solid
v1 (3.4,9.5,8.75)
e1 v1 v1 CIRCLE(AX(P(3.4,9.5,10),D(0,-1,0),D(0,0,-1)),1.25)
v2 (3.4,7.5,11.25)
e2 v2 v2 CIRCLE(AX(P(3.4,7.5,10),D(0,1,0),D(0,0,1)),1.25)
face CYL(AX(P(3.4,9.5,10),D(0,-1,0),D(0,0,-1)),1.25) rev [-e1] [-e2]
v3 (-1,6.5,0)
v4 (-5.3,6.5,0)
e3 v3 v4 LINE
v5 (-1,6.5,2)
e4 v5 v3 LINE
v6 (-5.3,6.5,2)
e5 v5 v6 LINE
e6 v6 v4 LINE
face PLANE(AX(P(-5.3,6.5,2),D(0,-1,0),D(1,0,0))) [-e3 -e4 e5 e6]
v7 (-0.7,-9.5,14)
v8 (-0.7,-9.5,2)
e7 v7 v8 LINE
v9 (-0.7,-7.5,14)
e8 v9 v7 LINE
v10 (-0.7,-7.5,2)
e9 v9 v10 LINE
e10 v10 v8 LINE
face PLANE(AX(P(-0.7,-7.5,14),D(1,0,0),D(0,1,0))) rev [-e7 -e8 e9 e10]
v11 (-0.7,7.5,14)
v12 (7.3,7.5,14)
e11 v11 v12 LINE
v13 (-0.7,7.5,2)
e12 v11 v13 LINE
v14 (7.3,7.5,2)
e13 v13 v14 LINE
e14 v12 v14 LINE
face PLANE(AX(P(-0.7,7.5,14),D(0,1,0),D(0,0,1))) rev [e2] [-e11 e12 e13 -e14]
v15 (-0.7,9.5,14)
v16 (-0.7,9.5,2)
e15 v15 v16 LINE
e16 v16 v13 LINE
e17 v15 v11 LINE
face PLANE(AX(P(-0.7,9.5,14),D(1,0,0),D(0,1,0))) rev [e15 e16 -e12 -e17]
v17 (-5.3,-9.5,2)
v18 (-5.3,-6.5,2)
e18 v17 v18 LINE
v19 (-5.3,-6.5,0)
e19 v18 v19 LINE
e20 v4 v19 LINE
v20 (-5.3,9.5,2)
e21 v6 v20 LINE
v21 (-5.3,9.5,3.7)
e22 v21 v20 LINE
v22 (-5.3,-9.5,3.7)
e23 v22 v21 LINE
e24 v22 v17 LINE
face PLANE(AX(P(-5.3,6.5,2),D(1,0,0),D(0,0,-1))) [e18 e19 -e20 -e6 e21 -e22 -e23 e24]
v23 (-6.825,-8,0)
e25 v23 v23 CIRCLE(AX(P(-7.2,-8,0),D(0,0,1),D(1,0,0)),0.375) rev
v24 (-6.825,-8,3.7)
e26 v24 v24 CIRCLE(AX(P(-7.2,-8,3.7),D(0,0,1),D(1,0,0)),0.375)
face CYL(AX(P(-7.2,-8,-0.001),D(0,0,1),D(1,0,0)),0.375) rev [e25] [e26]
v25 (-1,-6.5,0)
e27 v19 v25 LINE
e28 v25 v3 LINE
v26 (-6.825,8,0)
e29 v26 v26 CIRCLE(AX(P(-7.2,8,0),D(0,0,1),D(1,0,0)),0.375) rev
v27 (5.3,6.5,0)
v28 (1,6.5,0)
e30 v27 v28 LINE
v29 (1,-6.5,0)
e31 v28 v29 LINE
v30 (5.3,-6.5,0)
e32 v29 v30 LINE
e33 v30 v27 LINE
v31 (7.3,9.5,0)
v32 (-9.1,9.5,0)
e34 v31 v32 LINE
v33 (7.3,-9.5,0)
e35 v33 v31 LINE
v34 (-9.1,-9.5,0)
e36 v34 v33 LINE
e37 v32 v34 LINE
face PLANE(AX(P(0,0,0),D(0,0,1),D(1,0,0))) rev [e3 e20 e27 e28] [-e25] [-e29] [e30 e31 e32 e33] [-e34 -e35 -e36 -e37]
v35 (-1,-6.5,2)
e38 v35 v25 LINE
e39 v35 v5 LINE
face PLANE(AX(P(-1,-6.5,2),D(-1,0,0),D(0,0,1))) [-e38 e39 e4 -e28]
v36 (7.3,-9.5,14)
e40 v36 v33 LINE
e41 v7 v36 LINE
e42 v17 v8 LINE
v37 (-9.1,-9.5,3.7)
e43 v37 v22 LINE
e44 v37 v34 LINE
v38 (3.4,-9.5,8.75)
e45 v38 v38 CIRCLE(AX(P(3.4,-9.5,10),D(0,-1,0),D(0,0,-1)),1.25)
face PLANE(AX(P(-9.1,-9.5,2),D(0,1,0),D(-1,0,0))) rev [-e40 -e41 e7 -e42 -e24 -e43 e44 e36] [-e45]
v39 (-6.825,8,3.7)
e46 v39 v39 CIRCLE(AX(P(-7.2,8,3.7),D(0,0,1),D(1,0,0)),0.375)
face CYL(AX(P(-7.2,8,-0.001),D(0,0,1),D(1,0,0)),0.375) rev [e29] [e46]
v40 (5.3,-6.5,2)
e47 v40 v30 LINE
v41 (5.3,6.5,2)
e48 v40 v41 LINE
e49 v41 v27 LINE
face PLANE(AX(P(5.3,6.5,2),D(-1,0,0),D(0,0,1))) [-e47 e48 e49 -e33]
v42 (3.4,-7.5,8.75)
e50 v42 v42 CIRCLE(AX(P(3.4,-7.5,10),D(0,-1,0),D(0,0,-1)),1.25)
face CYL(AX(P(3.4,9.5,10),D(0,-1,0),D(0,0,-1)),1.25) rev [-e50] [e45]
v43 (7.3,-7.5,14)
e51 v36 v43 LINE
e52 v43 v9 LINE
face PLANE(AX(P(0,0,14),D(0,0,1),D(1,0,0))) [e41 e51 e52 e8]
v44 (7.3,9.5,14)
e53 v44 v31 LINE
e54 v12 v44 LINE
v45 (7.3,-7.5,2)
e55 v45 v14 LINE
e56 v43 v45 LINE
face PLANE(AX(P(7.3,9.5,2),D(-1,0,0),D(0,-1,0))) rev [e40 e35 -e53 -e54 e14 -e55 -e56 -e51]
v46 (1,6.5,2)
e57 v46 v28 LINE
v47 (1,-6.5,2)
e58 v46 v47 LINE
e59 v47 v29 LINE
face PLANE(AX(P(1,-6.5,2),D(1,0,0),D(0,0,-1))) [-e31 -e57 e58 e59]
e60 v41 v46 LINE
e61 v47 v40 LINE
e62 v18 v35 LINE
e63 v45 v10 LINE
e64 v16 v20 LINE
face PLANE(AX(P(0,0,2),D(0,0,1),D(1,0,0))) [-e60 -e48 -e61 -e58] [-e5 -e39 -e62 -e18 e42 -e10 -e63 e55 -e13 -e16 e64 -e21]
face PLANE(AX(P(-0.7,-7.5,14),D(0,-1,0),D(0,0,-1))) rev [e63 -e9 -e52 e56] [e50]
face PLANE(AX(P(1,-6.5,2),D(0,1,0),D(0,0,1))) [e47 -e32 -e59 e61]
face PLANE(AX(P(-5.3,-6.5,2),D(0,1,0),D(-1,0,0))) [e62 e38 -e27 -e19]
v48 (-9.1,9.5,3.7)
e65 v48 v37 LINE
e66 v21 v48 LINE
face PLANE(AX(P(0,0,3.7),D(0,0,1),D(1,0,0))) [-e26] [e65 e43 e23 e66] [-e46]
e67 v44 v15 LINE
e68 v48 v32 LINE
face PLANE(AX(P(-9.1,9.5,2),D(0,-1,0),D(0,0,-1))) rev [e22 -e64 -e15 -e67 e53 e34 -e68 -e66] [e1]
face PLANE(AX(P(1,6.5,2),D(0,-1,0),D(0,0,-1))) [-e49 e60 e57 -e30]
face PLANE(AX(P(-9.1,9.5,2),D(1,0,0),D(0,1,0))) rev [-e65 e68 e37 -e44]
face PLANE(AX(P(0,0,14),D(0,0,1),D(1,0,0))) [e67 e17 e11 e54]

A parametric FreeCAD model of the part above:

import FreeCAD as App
import Part
import Sketcher

V = App.Vector

doc = App.newDocument("Part")
body = doc.addObject("PartDesign::Body", "Body")

sketch1 = doc.addObject("Sketcher::SketchObject", "Sketch")
body.addObject(sketch1)
sketch1.AttachmentSupport = (doc.XY_Plane, [""])
sketch1.MapMode = "FlatFace"
sketch1.addGeometry([
    Part.LineSegment(V(-9.1, 9.5, 0), V(-9.1, -9.5, 0)),
    Part.LineSegment(V(-9.1, -9.5, 0), V(7.3, -9.5, 0)),
    Part.LineSegment(V(7.3, -9.5, 0), V(7.3, 9.5, 0)),
    Part.LineSegment(V(7.3, 9.5, 0), V(-9.1, 9.5, 0)),
    Part.LineSegment(V(-1, -6.5, 0), V(-5.3, -6.5, 0)),
    Part.LineSegment(V(-5.3, -6.5, 0), V(-5.3, 6.5, 0)),
    Part.LineSegment(V(-5.3, 6.5, 0), V(-1, 6.5, 0)),
    Part.LineSegment(V(-1, 6.5, 0), V(-1, -6.5, 0)),
    Part.LineSegment(V(5.3, -6.5, 0), V(1, -6.5, 0)),
    Part.LineSegment(V(1, -6.5, 0), V(1, 6.5, 0)),
    Part.LineSegment(V(1, 6.5, 0), V(5.3, 6.5, 0)),
    Part.LineSegment(V(5.3, 6.5, 0), V(5.3, -6.5, 0)),
], False)
sketch1.addConstraint([
    Sketcher.Constraint("Coincident", 0, 2, 1, 1),
    Sketcher.Constraint("Coincident", 1, 2, 2, 1),
    Sketcher.Constraint("Coincident", 2, 2, 3, 1),
    Sketcher.Constraint("Coincident", 3, 2, 0, 1),
    Sketcher.Constraint("Coincident", 4, 2, 5, 1),
    Sketcher.Constraint("Coincident", 5, 2, 6, 1),
    Sketcher.Constraint("Coincident", 6, 2, 7, 1),
    Sketcher.Constraint("Coincident", 7, 2, 4, 1),
    Sketcher.Constraint("Coincident", 8, 2, 9, 1),
    Sketcher.Constraint("Coincident", 9, 2, 10, 1),
    Sketcher.Constraint("Coincident", 10, 2, 11, 1),
    Sketcher.Constraint("Coincident", 11, 2, 8, 1),
    Sketcher.Constraint("Vertical", 0),
    Sketcher.Constraint("Horizontal", 1),
    Sketcher.Constraint("Vertical", 2),
    Sketcher.Constraint("Horizontal", 3),
    Sketcher.Constraint("Horizontal", 4),
    Sketcher.Constraint("Vertical", 5),
    Sketcher.Constraint("Horizontal", 6),
    Sketcher.Constraint("Vertical", 7),
    Sketcher.Constraint("Horizontal", 8),
    Sketcher.Constraint("Vertical", 9),
    Sketcher.Constraint("Horizontal", 10),
    Sketcher.Constraint("Vertical", 11),
    Sketcher.Constraint("Symmetric", 6, 2, 8, 2, -1, 1),
    Sketcher.Constraint("Symmetric", 4, 2, 10, 2, -1, 1),
    Sketcher.Constraint("Horizontal", 7, 2, 8, 2),
    Sketcher.Constraint("DistanceY", 0, 2, 0, 1, 19.0),
    Sketcher.Constraint("DistanceY", 5, 1, 5, 2, 13.0),
    Sketcher.Constraint("DistanceX", 1, 1, 1, 2, 16.4),
    Sketcher.Constraint("DistanceX", 4, 2, 4, 1, 4.3),
    Sketcher.Constraint("DistanceX", 6, 2, -1, 1, 1.0),
    Sketcher.Constraint("DistanceY", 0, 2, 4, 2, 3.0),
    Sketcher.Constraint("DistanceX", 10, 2, 2, 2, 2.0),
])
pad1 = doc.addObject("PartDesign::Pad", "Pad")
body.addObject(pad1)
pad1.Profile = sketch1
pad1.Length = 2

sketch2 = doc.addObject("Sketcher::SketchObject", "Sketch001")
body.addObject(sketch2)
sketch2.AttachmentSupport = (doc.XY_Plane, [""])
sketch2.MapMode = "FlatFace"
sketch2.AttachmentOffset = App.Placement(V(0, 0, 2), App.Rotation())
sketch2.addGeometry([
    Part.LineSegment(V(-0.7, 9.5, 0), V(-0.7, 7.5, 0)),
    Part.LineSegment(V(-0.7, 7.5, 0), V(7.3, 7.5, 0)),
    Part.LineSegment(V(7.3, 7.5, 0), V(7.3, 9.5, 0)),
    Part.LineSegment(V(7.3, 9.5, 0), V(-0.7, 9.5, 0)),
    Part.LineSegment(V(-0.7, -7.5, 0), V(-0.7, -9.5, 0)),
    Part.LineSegment(V(-0.7, -9.5, 0), V(7.3, -9.5, 0)),
    Part.LineSegment(V(7.3, -9.5, 0), V(7.3, -7.5, 0)),
    Part.LineSegment(V(7.3, -7.5, 0), V(-0.7, -7.5, 0)),
], False)
sketch2.addConstraint([
    Sketcher.Constraint("Coincident", 0, 2, 1, 1),
    Sketcher.Constraint("Coincident", 1, 2, 2, 1),
    Sketcher.Constraint("Coincident", 2, 2, 3, 1),
    Sketcher.Constraint("Coincident", 3, 2, 0, 1),
    Sketcher.Constraint("Coincident", 4, 2, 5, 1),
    Sketcher.Constraint("Coincident", 5, 2, 6, 1),
    Sketcher.Constraint("Coincident", 6, 2, 7, 1),
    Sketcher.Constraint("Coincident", 7, 2, 4, 1),
    Sketcher.Constraint("Vertical", 0),
    Sketcher.Constraint("Horizontal", 1),
    Sketcher.Constraint("Vertical", 2),
    Sketcher.Constraint("Horizontal", 3),
    Sketcher.Constraint("Vertical", 4),
    Sketcher.Constraint("Horizontal", 5),
    Sketcher.Constraint("Vertical", 6),
    Sketcher.Constraint("Horizontal", 7),
    Sketcher.Constraint("Symmetric", 3, 2, 4, 2, -1),
    Sketcher.Constraint("Symmetric", 1, 2, 6, 2, -1),
    Sketcher.Constraint("DistanceX", 1, 1, 1, 2, 8.0),
    Sketcher.Constraint("DistanceY", 0, 2, 0, 1, 2.0),
    Sketcher.Constraint("DistanceY", 4, 2, 0, 2, 17.0),
    Sketcher.Constraint("DistanceX", 0, 2, -1, 1, 0.7),
])
pad2 = doc.addObject("PartDesign::Pad", "Pad001")
body.addObject(pad2)
pad2.Profile = sketch2
pad2.Length = 12

sketch3 = doc.addObject("Sketcher::SketchObject", "Sketch002")
body.addObject(sketch3)
sketch3.AttachmentSupport = (doc.XY_Plane, [""])
sketch3.MapMode = "FlatFace"
sketch3.AttachmentOffset = App.Placement(V(0, 0, 2), App.Rotation())
sketch3.addGeometry([
    Part.LineSegment(V(-9.1, 9.5, 0), V(-9.1, -9.5, 0)),
    Part.LineSegment(V(-9.1, -9.5, 0), V(-5.3, -9.5, 0)),
    Part.LineSegment(V(-5.3, -9.5, 0), V(-5.3, 9.5, 0)),
    Part.LineSegment(V(-5.3, 9.5, 0), V(-9.1, 9.5, 0)),
], False)
sketch3.addConstraint([
    Sketcher.Constraint("Coincident", 0, 2, 1, 1),
    Sketcher.Constraint("Coincident", 1, 2, 2, 1),
    Sketcher.Constraint("Coincident", 2, 2, 3, 1),
    Sketcher.Constraint("Coincident", 3, 2, 0, 1),
    Sketcher.Constraint("Vertical", 0),
    Sketcher.Constraint("Horizontal", 1),
    Sketcher.Constraint("Vertical", 2),
    Sketcher.Constraint("Horizontal", 3),
    Sketcher.Constraint("DistanceY", 0, 2, 0, 1, 19.0),
    Sketcher.Constraint("DistanceX", 1, 1, 1, 2, 3.8),
    Sketcher.Constraint("DistanceX", 0, 2, -1, 1, 9.1),
    Sketcher.Constraint("DistanceY", 0, 2, -1, 1, 9.5),
])
pad3 = doc.addObject("PartDesign::Pad", "Pad002")
body.addObject(pad3)
pad3.Profile = sketch3
pad3.Length = 1.7

sketch4 = doc.addObject("Sketcher::SketchObject", "Sketch003")
body.addObject(sketch4)
sketch4.AttachmentSupport = (doc.XY_Plane, [""])
sketch4.MapMode = "FlatFace"
sketch4.AttachmentOffset = App.Placement(V(0, 0, 3.7), App.Rotation())
sketch4.addGeometry([
    Part.Circle(V(-7.2, 8, 0), V(0, 0, 1), 0.38),
    Part.Circle(V(-7.2, -8, 0), V(0, 0, 1), 0.38),
], False)
sketch4.addConstraint([
    Sketcher.Constraint("Equal", 0, 1),
    Sketcher.Constraint("Symmetric", 0, 3, 1, 3, -1),
    Sketcher.Constraint("Diameter", 0, 0.75),
    Sketcher.Constraint("DistanceY", -1, 1, 0, 3, 8.0),
    Sketcher.Constraint("DistanceX", 0, 3, -1, 1, 7.2),
])
pocket1 = doc.addObject("PartDesign::Pocket", "Pocket")
body.addObject(pocket1)
pocket1.Profile = sketch4
pocket1.Length = 3.7

sketch5 = doc.addObject("Sketcher::SketchObject", "Sketch004")
body.addObject(sketch5)
sketch5.AttachmentSupport = (doc.XZ_Plane, [""])
sketch5.MapMode = "FlatFace"
sketch5.AttachmentOffset = App.Placement(V(0, 0, 9.5), App.Rotation())
sketch5.addGeometry(Part.Circle(V(3.4, 10, 0), V(0, 0, 1), 1.2), False)
sketch5.addConstraint([
    Sketcher.Constraint("Diameter", 0, 2.5),
    Sketcher.Constraint("DistanceY", -1, 1, 0, 3, 10.0),
    Sketcher.Constraint("DistanceX", -1, 1, 0, 3, 3.4),
])
pocket2 = doc.addObject("PartDesign::Pocket", "Pocket001")
body.addObject(pocket2)
pocket2.Profile = sketch5
pocket2.Type = "ThroughAll"

doc.recompute()
